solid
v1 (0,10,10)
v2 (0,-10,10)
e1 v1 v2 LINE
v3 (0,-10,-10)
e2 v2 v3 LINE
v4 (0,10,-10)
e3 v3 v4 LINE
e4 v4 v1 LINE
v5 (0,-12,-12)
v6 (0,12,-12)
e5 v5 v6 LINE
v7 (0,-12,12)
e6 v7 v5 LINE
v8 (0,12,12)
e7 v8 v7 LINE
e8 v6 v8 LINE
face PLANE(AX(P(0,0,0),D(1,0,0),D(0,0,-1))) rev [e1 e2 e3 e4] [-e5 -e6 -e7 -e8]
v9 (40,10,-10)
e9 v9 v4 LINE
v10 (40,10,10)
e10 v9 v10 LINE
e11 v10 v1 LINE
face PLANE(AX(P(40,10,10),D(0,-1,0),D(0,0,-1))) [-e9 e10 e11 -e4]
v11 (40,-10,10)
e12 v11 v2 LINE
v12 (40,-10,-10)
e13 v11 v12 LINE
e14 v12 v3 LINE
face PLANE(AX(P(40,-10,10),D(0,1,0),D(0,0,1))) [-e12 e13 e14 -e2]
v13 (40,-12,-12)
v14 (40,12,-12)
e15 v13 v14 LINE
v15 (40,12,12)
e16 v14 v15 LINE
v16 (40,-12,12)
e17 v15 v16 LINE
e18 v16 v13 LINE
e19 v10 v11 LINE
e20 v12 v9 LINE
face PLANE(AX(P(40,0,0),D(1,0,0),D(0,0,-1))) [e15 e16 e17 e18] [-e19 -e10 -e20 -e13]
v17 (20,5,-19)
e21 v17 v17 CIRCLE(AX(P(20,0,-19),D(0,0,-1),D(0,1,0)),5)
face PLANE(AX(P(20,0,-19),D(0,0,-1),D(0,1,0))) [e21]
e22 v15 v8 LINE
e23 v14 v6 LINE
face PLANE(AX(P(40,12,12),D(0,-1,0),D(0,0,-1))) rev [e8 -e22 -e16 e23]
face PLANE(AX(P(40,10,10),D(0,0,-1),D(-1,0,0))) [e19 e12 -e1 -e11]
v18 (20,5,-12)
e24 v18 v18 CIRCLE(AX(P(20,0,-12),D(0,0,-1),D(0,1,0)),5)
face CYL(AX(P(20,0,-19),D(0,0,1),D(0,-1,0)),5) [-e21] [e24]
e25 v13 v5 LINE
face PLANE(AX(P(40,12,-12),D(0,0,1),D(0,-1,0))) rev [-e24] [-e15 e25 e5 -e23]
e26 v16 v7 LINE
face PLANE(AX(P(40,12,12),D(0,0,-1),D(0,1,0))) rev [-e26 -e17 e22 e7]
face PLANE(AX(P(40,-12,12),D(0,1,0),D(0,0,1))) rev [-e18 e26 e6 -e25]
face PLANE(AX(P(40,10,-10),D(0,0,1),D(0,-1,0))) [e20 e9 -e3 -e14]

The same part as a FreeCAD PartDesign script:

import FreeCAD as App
import Part
import Sketcher

doc = App.newDocument("Part")
body = doc.addObject("PartDesign::Body", "Body")

# Sketch on YZ plane
sketch1 = body.newObject("Sketcher::SketchObject", "Sketch")
sketch1.AttachmentSupport = (doc.getObject("YZ_Plane"), [""])
sketch1.MapMode = "FlatFace"
sketch1.addGeometry([
    Part.LineSegment(App.Vector(12, 12, 0), App.Vector(-12, 12, 0)),  # 0
    Part.LineSegment(App.Vector(-12, 12, 0), App.Vector(-12, -12, 0)),  # 1
    Part.LineSegment(App.Vector(-12, -12, 0), App.Vector(12, -12, 0)),  # 2
    Part.LineSegment(App.Vector(12, -12, 0), App.Vector(12, 12, 0)),  # 3
    Part.LineSegment(App.Vector(-10, -10, 0), App.Vector(-10, 10, 0)),  # 4
    Part.LineSegment(App.Vector(-10, 10, 0), App.Vector(10, 10, 0)),  # 5
    Part.LineSegment(App.Vector(10, 10, 0), App.Vector(10, -10, 0)),  # 6
    Part.LineSegment(App.Vector(10, -10, 0), App.Vector(-10, -10, 0)),  # 7
], False)
sketch1.addConstraint([
    Sketcher.Constraint("Coincident", 0, 2, 1, 1),
    Sketcher.Constraint("Coincident", 1, 2, 2, 1),
    Sketcher.Constraint("Coincident", 2, 2, 3, 1),
    Sketcher.Constraint("Coincident", 3, 2, 0, 1),
    Sketcher.Constraint("Coincident", 4, 2, 5, 1),
    Sketcher.Constraint("Coincident", 5, 2, 6, 1),
    Sketcher.Constraint("Coincident", 6, 2, 7, 1),
    Sketcher.Constraint("Coincident", 7, 2, 4, 1),
    Sketcher.Constraint("Horizontal", 0),
    Sketcher.Constraint("Vertical", 1),
    Sketcher.Constraint("Horizontal", 2),
    Sketcher.Constraint("Vertical", 3),
    Sketcher.Constraint("Vertical", 4),
    Sketcher.Constraint("Horizontal", 5),
    Sketcher.Constraint("Vertical", 6),
    Sketcher.Constraint("Horizontal", 7),
    Sketcher.Constraint("Symmetric", 0, 2, 2, 2, -1, 1),
    Sketcher.Constraint("Symmetric", 4, 2, 6, 2, -1, 1),
    Sketcher.Constraint("Equal", 2, 1),
    Sketcher.Constraint("Equal", 7, 4),
    Sketcher.Constraint("DistanceX", 0, 2, 0, 1, 24.0),
    Sketcher.Constraint("DistanceX", 5, 1, 5, 2, 20.0),
])
pad1 = body.newObject("PartDesign::Pad", "Pad")
pad1.Profile = sketch1
pad1.Length = 40

# Sketch on XY plane
sketch2 = body.newObject("Sketcher::SketchObject", "Sketch001")
sketch2.AttachmentSupport = (doc.getObject("XY_Plane"), [""])
sketch2.MapMode = "FlatFace"
sketch2.AttachmentOffset = App.Placement(App.Vector(0, 0, -12), App.Rotation())
sketch2.addGeometry(Part.Circle(App.Vector(20, 0, 0), App.Vector(0, 0, 1), 5), False)
sketch2.addConstraint([
    Sketcher.Constraint("PointOnObject", 0, 3, -1),
    Sketcher.Constraint("Diameter", 0, 10.0),
    Sketcher.Constraint("DistanceX", -1, 1, 0, 3, 20.0),
])
pad2 = body.newObject("PartDesign::Pad", "Pad001")
pad2.Profile = sketch2
pad2.Length = 7
pad2.Reversed = True

doc.recompute()
